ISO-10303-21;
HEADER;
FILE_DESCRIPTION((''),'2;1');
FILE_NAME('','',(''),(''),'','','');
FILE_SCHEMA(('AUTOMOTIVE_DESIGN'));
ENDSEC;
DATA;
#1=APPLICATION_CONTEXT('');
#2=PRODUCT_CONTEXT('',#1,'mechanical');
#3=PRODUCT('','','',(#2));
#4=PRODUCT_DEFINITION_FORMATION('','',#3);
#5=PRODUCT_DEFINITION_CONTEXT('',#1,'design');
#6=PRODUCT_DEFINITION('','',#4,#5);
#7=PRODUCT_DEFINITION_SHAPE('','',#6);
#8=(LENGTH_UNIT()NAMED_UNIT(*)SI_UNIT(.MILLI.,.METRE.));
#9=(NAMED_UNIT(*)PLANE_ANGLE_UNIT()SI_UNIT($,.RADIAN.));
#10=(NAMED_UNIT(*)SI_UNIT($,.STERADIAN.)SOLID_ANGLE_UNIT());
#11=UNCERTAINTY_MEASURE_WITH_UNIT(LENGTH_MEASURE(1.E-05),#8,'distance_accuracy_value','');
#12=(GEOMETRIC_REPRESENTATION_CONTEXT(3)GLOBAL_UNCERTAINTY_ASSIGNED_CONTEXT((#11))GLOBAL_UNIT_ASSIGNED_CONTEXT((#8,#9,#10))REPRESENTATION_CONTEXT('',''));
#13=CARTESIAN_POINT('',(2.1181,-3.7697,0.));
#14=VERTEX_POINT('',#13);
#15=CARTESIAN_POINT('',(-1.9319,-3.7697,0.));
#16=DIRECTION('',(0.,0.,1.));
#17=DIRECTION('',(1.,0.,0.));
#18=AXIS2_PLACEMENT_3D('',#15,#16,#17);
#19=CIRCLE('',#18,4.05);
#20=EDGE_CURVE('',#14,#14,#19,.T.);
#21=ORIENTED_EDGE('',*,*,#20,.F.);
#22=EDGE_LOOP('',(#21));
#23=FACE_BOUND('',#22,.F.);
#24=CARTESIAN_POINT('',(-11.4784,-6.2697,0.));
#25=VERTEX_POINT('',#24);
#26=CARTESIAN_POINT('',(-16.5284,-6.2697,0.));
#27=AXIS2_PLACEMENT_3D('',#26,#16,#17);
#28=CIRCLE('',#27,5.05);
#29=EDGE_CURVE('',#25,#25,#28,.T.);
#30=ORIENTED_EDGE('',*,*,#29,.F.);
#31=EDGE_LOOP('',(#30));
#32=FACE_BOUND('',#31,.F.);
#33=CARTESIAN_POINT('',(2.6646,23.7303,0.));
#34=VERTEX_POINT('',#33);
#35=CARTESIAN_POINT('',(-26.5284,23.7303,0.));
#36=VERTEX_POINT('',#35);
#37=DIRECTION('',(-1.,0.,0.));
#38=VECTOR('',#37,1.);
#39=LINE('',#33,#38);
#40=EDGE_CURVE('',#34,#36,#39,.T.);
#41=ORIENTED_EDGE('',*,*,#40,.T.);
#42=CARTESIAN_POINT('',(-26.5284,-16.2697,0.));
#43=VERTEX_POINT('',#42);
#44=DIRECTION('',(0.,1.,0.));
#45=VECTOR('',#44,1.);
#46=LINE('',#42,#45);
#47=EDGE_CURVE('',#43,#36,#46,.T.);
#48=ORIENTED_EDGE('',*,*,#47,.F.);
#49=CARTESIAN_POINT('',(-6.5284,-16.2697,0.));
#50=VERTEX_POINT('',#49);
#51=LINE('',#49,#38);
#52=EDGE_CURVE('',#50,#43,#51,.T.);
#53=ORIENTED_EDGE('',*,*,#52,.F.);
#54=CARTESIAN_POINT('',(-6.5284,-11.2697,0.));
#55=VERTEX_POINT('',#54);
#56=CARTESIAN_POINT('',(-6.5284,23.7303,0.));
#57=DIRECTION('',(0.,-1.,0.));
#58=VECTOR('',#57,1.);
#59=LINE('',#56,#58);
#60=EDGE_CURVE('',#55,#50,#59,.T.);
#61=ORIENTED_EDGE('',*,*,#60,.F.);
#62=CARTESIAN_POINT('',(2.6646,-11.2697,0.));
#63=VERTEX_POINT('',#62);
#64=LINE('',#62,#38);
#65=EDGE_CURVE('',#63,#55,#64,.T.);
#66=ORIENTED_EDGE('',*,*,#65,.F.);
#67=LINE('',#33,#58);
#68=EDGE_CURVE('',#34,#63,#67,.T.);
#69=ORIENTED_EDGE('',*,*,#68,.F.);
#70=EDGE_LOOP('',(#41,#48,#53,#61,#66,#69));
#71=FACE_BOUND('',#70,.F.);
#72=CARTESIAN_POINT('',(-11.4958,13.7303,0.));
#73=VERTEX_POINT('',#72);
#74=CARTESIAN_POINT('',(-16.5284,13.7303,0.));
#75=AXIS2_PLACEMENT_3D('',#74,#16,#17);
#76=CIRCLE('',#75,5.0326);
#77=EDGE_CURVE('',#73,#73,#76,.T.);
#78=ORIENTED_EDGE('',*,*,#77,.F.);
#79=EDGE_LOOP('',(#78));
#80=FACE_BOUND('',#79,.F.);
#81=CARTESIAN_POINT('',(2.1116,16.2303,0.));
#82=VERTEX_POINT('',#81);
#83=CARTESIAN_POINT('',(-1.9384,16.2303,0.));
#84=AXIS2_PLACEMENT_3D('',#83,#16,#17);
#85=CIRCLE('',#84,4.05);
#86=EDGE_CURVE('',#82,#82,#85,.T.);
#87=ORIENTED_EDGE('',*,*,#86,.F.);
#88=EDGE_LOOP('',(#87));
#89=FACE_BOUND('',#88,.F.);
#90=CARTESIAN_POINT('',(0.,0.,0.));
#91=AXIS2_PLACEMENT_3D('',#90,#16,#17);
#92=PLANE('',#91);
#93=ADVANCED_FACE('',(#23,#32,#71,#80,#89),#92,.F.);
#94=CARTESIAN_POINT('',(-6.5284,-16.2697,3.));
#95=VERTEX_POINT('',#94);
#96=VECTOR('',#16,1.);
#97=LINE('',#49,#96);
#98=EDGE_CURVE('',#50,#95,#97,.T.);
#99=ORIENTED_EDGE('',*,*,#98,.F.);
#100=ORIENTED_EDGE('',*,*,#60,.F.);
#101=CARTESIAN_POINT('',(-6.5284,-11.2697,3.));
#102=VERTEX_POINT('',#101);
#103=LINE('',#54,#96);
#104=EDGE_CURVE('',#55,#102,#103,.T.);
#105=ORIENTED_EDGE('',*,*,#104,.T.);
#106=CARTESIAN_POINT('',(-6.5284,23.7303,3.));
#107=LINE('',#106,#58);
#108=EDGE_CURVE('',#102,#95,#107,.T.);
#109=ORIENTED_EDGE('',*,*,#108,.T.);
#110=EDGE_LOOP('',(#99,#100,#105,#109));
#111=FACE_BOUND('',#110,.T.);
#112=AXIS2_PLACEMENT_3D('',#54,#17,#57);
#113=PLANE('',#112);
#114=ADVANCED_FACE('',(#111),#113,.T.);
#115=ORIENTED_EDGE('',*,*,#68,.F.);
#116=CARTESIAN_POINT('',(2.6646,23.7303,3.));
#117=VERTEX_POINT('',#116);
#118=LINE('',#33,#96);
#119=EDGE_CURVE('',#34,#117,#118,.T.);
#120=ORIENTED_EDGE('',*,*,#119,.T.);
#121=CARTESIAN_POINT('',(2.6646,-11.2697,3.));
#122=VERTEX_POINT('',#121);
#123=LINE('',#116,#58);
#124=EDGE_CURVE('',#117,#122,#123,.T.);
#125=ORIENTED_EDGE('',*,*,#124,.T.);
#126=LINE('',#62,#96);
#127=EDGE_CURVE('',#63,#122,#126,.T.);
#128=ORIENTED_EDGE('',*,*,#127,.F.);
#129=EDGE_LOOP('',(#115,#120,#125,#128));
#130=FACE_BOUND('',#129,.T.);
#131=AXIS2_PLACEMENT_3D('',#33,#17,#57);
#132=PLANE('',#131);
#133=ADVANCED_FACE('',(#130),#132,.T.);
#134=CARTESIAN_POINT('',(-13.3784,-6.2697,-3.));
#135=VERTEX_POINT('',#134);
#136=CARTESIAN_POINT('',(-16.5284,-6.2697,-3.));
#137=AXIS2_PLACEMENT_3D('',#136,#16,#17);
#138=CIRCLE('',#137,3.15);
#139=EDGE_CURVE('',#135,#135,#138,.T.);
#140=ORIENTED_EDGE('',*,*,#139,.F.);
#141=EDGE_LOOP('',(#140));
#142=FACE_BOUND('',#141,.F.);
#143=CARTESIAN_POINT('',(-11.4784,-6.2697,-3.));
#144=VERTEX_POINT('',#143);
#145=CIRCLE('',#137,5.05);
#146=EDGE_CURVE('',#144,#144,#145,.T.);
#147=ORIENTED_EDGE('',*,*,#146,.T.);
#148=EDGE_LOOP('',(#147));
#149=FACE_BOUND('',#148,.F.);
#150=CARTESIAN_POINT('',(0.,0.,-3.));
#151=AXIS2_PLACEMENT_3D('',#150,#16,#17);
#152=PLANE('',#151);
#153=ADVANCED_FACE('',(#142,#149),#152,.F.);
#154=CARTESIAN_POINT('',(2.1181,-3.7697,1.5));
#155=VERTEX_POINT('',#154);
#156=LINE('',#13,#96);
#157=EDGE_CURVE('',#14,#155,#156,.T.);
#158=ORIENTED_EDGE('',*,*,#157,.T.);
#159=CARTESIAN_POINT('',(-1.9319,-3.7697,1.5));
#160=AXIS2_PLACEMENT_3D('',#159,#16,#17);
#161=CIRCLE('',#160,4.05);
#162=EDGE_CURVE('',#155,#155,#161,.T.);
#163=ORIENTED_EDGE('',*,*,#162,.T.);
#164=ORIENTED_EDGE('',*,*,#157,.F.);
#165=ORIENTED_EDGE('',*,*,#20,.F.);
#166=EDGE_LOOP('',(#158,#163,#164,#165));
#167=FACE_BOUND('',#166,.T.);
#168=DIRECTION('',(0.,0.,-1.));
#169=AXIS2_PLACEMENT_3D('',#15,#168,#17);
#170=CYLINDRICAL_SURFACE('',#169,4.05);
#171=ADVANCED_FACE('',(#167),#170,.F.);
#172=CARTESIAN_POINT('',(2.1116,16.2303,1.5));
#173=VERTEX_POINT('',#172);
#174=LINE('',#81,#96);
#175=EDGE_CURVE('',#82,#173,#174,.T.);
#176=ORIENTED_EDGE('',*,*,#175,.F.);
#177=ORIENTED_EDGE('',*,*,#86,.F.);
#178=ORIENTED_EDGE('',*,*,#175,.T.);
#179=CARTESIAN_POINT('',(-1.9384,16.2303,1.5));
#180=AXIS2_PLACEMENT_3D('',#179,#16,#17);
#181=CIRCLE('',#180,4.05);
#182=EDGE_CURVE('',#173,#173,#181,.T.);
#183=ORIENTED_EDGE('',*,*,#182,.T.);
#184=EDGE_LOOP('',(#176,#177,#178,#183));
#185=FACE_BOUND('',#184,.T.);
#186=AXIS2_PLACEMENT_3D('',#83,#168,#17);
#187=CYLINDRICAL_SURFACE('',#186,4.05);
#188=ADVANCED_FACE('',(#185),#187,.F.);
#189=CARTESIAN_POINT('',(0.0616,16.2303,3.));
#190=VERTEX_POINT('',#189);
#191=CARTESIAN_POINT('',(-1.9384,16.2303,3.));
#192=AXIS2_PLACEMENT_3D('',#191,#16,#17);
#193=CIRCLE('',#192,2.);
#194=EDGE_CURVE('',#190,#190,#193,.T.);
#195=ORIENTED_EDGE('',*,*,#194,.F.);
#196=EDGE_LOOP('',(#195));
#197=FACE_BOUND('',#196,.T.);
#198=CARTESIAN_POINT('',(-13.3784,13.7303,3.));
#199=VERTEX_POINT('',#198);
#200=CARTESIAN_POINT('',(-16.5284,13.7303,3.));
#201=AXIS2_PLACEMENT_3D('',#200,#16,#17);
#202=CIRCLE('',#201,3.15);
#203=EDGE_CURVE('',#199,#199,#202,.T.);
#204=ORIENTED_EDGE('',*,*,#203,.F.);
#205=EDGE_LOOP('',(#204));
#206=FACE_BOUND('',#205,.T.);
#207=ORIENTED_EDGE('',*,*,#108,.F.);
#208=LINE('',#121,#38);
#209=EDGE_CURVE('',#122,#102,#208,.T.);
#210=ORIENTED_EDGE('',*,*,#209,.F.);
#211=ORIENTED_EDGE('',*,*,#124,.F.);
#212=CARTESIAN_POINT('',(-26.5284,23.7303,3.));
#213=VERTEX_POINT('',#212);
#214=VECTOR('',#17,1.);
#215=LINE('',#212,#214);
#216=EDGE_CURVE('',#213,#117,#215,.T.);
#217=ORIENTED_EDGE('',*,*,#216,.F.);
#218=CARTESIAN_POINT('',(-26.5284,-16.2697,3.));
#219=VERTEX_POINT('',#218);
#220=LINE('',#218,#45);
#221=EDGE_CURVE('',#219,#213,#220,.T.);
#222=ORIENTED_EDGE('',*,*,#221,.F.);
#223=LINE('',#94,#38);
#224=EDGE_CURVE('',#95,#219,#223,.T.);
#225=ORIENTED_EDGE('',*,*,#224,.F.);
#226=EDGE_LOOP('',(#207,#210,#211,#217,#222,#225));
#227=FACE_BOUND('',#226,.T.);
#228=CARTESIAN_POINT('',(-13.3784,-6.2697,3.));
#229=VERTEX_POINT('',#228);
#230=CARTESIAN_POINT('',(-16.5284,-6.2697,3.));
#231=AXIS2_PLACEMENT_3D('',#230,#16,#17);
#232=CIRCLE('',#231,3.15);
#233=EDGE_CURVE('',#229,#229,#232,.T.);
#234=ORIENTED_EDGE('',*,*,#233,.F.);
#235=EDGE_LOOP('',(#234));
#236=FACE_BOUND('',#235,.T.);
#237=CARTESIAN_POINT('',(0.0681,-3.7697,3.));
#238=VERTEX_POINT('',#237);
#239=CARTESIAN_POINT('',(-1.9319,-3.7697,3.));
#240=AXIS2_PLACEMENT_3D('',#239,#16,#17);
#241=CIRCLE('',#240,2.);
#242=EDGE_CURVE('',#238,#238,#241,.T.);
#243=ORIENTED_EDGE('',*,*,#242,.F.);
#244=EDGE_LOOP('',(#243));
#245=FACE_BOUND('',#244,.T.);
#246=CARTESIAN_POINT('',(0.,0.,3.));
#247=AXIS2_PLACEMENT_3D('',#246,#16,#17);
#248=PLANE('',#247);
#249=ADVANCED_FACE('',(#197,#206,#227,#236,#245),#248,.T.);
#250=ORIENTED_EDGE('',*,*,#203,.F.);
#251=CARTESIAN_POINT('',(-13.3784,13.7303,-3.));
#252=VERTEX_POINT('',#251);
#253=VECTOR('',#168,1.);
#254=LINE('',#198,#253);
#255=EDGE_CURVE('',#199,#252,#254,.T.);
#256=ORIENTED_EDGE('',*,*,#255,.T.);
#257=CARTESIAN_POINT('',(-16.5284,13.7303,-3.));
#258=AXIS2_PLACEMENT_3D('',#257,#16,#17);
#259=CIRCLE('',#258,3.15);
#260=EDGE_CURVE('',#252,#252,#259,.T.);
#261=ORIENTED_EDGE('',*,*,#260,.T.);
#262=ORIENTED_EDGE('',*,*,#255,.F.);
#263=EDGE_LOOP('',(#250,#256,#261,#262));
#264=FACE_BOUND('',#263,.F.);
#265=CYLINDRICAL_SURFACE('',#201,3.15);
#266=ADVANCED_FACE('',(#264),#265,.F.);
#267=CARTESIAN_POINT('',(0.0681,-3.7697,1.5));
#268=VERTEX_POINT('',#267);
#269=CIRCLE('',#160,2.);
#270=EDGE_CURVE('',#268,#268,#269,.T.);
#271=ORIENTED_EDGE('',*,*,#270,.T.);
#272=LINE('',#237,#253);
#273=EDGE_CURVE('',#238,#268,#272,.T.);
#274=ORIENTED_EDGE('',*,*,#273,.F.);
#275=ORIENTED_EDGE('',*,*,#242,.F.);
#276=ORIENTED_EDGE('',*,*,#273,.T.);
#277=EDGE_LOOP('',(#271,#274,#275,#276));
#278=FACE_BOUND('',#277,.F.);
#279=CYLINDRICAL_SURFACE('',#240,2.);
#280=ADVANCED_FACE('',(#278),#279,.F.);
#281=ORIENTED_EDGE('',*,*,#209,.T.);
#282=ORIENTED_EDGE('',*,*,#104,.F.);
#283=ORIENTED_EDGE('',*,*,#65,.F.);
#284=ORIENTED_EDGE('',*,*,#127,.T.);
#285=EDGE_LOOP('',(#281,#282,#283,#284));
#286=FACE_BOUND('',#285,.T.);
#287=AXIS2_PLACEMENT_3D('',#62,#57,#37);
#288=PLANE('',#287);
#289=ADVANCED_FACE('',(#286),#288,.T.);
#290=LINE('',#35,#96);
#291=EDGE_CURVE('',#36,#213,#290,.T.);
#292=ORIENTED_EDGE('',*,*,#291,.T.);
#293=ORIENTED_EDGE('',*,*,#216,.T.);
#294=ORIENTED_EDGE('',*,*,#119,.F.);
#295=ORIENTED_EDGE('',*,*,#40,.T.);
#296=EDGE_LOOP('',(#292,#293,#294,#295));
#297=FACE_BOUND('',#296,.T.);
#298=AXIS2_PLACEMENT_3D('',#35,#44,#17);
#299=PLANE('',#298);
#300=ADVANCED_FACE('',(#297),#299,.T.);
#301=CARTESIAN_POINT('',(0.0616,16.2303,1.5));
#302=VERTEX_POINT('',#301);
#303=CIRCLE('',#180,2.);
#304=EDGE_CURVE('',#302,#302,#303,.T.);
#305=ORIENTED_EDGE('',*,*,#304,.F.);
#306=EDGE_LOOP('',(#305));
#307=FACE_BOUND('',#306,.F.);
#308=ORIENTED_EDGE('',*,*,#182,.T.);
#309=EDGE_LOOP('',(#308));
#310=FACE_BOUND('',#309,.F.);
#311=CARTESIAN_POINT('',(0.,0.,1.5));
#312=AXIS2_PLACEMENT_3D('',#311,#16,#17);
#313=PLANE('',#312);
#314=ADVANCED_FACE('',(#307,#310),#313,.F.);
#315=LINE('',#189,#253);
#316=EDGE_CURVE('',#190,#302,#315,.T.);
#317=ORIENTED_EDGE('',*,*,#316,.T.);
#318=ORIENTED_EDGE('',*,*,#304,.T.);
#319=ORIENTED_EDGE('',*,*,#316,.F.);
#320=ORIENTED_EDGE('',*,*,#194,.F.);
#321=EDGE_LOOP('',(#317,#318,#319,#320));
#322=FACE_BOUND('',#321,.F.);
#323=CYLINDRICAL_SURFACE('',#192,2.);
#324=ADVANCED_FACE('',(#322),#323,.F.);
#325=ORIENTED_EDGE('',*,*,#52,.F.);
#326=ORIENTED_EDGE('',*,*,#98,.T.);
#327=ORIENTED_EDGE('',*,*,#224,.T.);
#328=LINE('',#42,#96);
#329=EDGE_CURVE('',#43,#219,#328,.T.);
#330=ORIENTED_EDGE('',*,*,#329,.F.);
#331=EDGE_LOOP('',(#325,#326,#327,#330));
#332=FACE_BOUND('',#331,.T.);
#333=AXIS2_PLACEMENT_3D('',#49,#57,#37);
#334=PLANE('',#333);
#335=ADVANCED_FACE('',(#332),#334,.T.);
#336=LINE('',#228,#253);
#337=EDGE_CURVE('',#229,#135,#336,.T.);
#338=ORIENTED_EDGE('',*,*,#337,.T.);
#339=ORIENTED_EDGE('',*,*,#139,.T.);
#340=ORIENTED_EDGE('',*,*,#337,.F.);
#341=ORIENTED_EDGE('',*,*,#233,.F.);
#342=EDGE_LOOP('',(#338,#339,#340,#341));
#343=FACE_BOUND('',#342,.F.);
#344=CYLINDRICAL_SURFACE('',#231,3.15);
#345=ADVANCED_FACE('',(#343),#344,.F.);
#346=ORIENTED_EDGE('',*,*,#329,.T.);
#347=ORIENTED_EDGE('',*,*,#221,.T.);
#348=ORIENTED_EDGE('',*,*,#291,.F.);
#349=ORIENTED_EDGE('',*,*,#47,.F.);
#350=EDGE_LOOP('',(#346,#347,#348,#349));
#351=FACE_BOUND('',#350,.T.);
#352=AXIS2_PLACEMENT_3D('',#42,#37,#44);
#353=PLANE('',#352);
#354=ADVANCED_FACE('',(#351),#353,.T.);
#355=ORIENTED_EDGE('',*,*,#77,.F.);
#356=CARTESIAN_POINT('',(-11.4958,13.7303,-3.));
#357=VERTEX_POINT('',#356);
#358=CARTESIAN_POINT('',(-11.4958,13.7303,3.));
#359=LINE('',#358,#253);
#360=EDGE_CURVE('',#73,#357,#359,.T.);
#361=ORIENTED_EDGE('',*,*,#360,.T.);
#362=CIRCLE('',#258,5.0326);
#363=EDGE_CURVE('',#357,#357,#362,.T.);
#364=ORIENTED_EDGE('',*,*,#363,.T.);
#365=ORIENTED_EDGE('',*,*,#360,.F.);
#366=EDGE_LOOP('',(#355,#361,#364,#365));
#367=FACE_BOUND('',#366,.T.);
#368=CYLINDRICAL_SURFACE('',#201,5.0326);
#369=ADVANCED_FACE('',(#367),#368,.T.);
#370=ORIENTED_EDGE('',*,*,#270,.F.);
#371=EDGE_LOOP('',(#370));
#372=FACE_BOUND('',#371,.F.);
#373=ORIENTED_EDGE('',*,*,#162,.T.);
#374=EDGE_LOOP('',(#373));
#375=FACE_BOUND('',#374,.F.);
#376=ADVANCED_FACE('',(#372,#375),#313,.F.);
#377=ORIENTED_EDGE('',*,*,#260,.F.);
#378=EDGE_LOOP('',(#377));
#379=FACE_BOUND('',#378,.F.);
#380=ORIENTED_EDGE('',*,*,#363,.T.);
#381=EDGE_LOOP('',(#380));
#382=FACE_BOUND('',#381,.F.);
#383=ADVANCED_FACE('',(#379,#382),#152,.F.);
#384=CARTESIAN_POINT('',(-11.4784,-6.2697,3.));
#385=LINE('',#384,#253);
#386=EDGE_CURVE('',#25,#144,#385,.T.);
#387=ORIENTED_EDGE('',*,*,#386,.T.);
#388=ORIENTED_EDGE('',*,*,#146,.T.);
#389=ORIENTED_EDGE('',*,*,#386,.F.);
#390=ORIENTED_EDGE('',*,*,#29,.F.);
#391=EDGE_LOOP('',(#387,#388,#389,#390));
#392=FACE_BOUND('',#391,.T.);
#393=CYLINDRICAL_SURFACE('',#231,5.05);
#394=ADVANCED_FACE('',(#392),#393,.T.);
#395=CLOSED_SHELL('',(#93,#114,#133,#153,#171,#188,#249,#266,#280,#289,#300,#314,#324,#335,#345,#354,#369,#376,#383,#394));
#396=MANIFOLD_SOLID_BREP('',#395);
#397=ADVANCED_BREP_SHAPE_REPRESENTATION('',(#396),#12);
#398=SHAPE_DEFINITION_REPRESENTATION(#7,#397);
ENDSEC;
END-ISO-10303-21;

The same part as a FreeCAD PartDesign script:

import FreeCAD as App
import Part
import Sketcher


def add_polygon(sketch, points):
    """Adds a closed chain of lines whose ends are joined by coincident constraints."""
    first, n = sketch.GeometryCount, len(points)
    for a, b in zip(points, points[1:] + points[:1]):
        sketch.addGeometry(Part.LineSegment(App.Vector(*a, 0), App.Vector(*b, 0)), False)
    for i in range(n):
        sketch.addConstraint(Sketcher.Constraint("Coincident", first + i, 2, first + (i + 1) % n, 1))

doc = App.newDocument("Part")
body = doc.addObject("PartDesign::Body", "Body")

sketch1 = doc.addObject("Sketcher::SketchObject", "Sketch")
body.addObject(sketch1)
sketch1.AttachmentSupport = (doc.XY_Plane, [""])
sketch1.MapMode = "FlatFace"
add_polygon(sketch1, [(-26.5, 23.7), (-26.5, -16.3), (-6.5, -16.3), (-6.5, -11.3), (2.7, -11.3), (2.7, 23.7)])
sketch1.addGeometry(Part.Circle(App.Vector(-16.5, -6.3, 0), App.Vector(0, 0, 1), 5), False)
sketch1.addGeometry(Part.Circle(App.Vector(-16.5, 13.7, 0), App.Vector(0, 0, 1), 5), False)
sketch1.addGeometry(Part.Circle(App.Vector(-1.9, 16.2, 0), App.Vector(0, 0, 1), 4), False)
sketch1.addGeometry(Part.Circle(App.Vector(-1.9, -3.8, 0), App.Vector(0, 0, 1), 4), False)
sketch1.addConstraint(Sketcher.Constraint("Vertical", 0))
sketch1.addConstraint(Sketcher.Constraint("Horizontal", 1))
sketch1.addConstraint(Sketcher.Constraint("Vertical", 2))
sketch1.addConstraint(Sketcher.Constraint("Horizontal", 3))
sketch1.addConstraint(Sketcher.Constraint("Vertical", 4))
sketch1.addConstraint(Sketcher.Constraint("Horizontal", 5))
sketch1.addConstraint(Sketcher.Constraint("Equal", 8, 9))
sketch1.addConstraint(Sketcher.Constraint("Vertical", 6, 3, 7, 3))
sketch1.addConstraint(Sketcher.Constraint("Diameter", 6, 10.1))
sketch1.addConstraint(Sketcher.Constraint("Diameter", 8, 8.1))
sketch1.addConstraint(Sketcher.Constraint("DistanceY", 4, 1, 4, 2, 35.0))
sketch1.addConstraint(Sketcher.Constraint("DistanceX", 0, 2, 6, 3, 10.0))
sketch1.addConstraint(Sketcher.Constraint("DistanceY", 0, 2, 6, 3, 10.0))
sketch1.addConstraint(Sketcher.Constraint("DistanceX", 6, 3, 1, 2, 10.0))
sketch1.addConstraint(Sketcher.Constraint("DistanceY", 7, 3, 4, 2, 10.0))
sketch1.addConstraint(Sketcher.Constraint("DistanceY", 2, 2, 9, 3, 7.5))
sketch1.addConstraint(Sketcher.Constraint("DistanceY", 8, 3, 4, 2, 7.5))
sketch1.addConstraint(Sketcher.Constraint("DistanceY", 0, 2, 0, 1, 40.0))
sketch1.addConstraint(Sketcher.Constraint("DistanceX", 1, 2, 8, 3, 4.59))
sketch1.addConstraint(Sketcher.Constraint("Diameter", 7, 10.0652))
sketch1.addConstraint(Sketcher.Constraint("DistanceX", 3, 1, 3, 2, 9.193))
sketch1.addConstraint(Sketcher.Constraint("DistanceX", 9, 3, -1, 1, 1.932))
sketch1.addConstraint(Sketcher.Constraint("DistanceX", 6, 3, -1, 1, 16.5284))
sketch1.addConstraint(Sketcher.Constraint("DistanceY", 6, 3, -1, 1, 6.2697))
pad1 = doc.addObject("PartDesign::Pad", "Pad")
body.addObject(pad1)
pad1.Profile = sketch1
pad1.Length = 3

sketch2 = doc.addObject("Sketcher::SketchObject", "Sketch001")
body.addObject(sketch2)
sketch2.AttachmentSupport = (doc.XY_Plane, [""])
sketch2.MapMode = "FlatFace"
sketch2.AttachmentOffset = App.Placement(App.Vector(0, 0, 3), App.Rotation())
sketch2.addGeometry(Part.Circle(App.Vector(-1.9, 16.2, 0), App.Vector(0, 0, 1), 4), False)
sketch2.addGeometry(Part.Circle(App.Vector(-1.9, 16.2, 0), App.Vector(0, 0, 1), 2), False)
sketch2.addGeometry(Part.Circle(App.Vector(-1.9, -3.8, 0), App.Vector(0, 0, 1), 4), False)
sketch2.addGeometry(Part.Circle(App.Vector(-1.9, -3.8, 0), App.Vector(0, 0, 1), 2), False)
sketch2.addConstraint(Sketcher.Constraint("Coincident", 1, 3, 0, 3))
sketch2.addConstraint(Sketcher.Constraint("Coincident", 3, 3, 2, 3))
sketch2.addConstraint(Sketcher.Constraint("Equal", 0, 2))
sketch2.addConstraint(Sketcher.Constraint("Equal", 1, 3))
sketch2.addConstraint(Sketcher.Constraint("Diameter", 1, 4.0))
sketch2.addConstraint(Sketcher.Constraint("Diameter", 0, 8.1))
sketch2.addConstraint(Sketcher.Constraint("DistanceY", 2, 3, 0, 3, 20.0))
sketch2.addConstraint(Sketcher.Constraint("DistanceX", 2, 3, -1, 1, 1.932))
sketch2.addConstraint(Sketcher.Constraint("DistanceX", 0, 3, -1, 1, 1.9384))
sketch2.addConstraint(Sketcher.Constraint("DistanceY", -1, 1, 0, 3, 16.2303))
pad2 = doc.addObject("PartDesign::Pad", "Pad001")
body.addObject(pad2)
pad2.Profile = sketch2
pad2.Length = 1.5
pad2.Reversed = True

sketch3 = doc.addObject("Sketcher::SketchObject", "Sketch002")
body.addObject(sketch3)
sketch3.AttachmentSupport = (doc.XY_Plane, [""])
sketch3.MapMode = "FlatFace"
sketch3.AttachmentOffset = App.Placement(App.Vector(0, 0, 3), App.Rotation())
sketch3.addGeometry(Part.Circle(App.Vector(-16.5, -6.3, 0), App.Vector(0, 0, 1), 5), False)
sketch3.addGeometry(Part.Circle(App.Vector(-16.5, -6.3, 0), App.Vector(0, 0, 1), 3.1), False)
sketch3.addGeometry(Part.Circle(App.Vector(-16.5, 13.7, 0), App.Vector(0, 0, 1), 5), False)
sketch3.addGeometry(Part.Circle(App.Vector(-16.5, 13.7, 0), App.Vector(0, 0, 1), 3.1), False)
sketch3.addConstraint(Sketcher.Constraint("Coincident", 1, 3, 0, 3))
sketch3.addConstraint(Sketcher.Constraint("Coincident", 3, 3, 2, 3))
sketch3.addConstraint(Sketcher.Constraint("Equal", 1, 3))
sketch3.addConstraint(Sketcher.Constraint("Vertical", 1, 3, 2, 3))
sketch3.addConstraint(Sketcher.Constraint("Diameter", 1, 6.3))
sketch3.addConstraint(Sketcher.Constraint("Diameter", 0, 10.1))
sketch3.addConstraint(Sketcher.Constraint("DistanceY", 0, 3, 2, 3, 20.0))
sketch3.addConstraint(Sketcher.Constraint("Diameter", 2, 10.0652))
sketch3.addConstraint(Sketcher.Constraint("DistanceX", 0, 3, -1, 1, 16.5284))
sketch3.addConstraint(Sketcher.Constraint("DistanceY", 0, 3, -1, 1, 6.2697))
pad3 = doc.addObject("PartDesign::Pad", "Pad002")
body.addObject(pad3)
pad3.Profile = sketch3
pad3.Length = 6
pad3.Reversed = True

doc.recompute()
